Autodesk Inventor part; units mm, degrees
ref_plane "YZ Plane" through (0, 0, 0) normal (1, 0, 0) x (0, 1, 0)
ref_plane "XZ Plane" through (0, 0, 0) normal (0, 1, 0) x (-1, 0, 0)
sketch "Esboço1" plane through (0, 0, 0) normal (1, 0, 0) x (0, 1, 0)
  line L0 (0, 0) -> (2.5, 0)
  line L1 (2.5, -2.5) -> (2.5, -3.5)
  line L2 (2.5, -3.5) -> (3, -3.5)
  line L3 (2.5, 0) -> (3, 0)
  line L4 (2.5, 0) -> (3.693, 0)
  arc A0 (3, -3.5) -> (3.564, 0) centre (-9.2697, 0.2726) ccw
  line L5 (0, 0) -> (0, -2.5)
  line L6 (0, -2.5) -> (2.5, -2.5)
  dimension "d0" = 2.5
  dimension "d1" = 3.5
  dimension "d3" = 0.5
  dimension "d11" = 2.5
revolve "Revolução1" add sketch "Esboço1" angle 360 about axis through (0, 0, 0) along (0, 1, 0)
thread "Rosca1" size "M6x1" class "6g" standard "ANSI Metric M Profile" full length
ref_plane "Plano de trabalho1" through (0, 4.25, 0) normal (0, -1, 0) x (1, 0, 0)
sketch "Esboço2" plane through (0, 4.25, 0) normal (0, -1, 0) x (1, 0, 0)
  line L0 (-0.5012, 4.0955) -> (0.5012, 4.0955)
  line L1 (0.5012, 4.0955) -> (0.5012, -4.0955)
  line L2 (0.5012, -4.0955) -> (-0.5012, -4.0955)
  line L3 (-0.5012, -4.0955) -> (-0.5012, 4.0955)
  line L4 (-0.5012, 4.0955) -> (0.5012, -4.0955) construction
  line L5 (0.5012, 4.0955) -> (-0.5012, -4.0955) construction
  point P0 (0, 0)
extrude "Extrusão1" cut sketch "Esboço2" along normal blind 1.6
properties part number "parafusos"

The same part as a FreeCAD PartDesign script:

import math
import FreeCAD as App
import Part
import Sketcher

V = App.Vector
Q = App.Units.Quantity


def add_polygon(sketch, points):
    """Adds a closed chain of lines whose ends are joined by coincident constraints."""
    first, n = sketch.GeometryCount, len(points)
    for a, b in zip(points, points[1:] + points[:1]):
        sketch.addGeometry(Part.LineSegment(App.Vector(*a, 0), App.Vector(*b, 0)), False)
    for i in range(n):
        sketch.addConstraint(Sketcher.Constraint("Coincident", first + i, 2, first + (i + 1) % n, 1))

doc = App.newDocument("Part")
body = doc.addObject("PartDesign::Body", "Body")

sketch1 = body.newObject("Sketcher::SketchObject", "Sketch")
sketch1.AttachmentSupport = (doc.getObject("YZ_Plane"), [""])
sketch1.MapMode = "FlatFace"
sketch1.addGeometry(Part.LineSegment(V(3.6, 0, 0), V(0, 0, 0)), False)
sketch1.addGeometry(Part.LineSegment(V(0, 0, 0), V(0, -2.5, 0)), False)
sketch1.addGeometry(Part.LineSegment(V(0, -2.5, 0), V(2.5, -2.5, 0)), False)
sketch1.addGeometry(Part.LineSegment(V(2.5, -2.5, 0), V(2.5, -3.5, 0)), False)
sketch1.addGeometry(Part.LineSegment(V(2.5, -3.5, 0), V(3, -3.5, 0)), False)
sketch1.addGeometry(Part.ArcOfCircle(Part.Circle(V(-9.3, 0.3, 0), V(0, 0, 1), 12.8), math.radians(-17.09), math.radians(-1.22)), False)
sketch1.addConstraint(Sketcher.Constraint("Coincident", 0, 2, 1, 1))
sketch1.addConstraint(Sketcher.Constraint("Coincident", 1, 2, 2, 1))
sketch1.addConstraint(Sketcher.Constraint("Coincident", 2, 2, 3, 1))
sketch1.addConstraint(Sketcher.Constraint("Coincident", 3, 2, 4, 1))
sketch1.addConstraint(Sketcher.Constraint("Coincident", 4, 2, 5, 1))
sketch1.addConstraint(Sketcher.Constraint("Coincident", 5, 2, 0, 1))
sketch1.addConstraint(Sketcher.Constraint("Horizontal", 0))
sketch1.addConstraint(Sketcher.Constraint("Vertical", 1))
sketch1.addConstraint(Sketcher.Constraint("Horizontal", 2))
sketch1.addConstraint(Sketcher.Constraint("Vertical", 3))
sketch1.addConstraint(Sketcher.Constraint("Horizontal", 4))
sketch1.addConstraint(Sketcher.Constraint("Coincident", 0, 2, -1, 1))
sketch1.addConstraint(Sketcher.Constraint("Equal", 2, 1))
sketch1.addConstraint(Sketcher.Constraint("DistanceX", 2, 1, 2, 2, Q("2.5 mm")))
sketch1.addConstraint(Sketcher.Constraint("DistanceX", 4, 1, 4, 2, Q("0.5 mm")))
sketch1.addConstraint(Sketcher.Constraint("DistanceY", 3, 2, -1, 1, Q("3.5 mm")))
sketch1.addConstraint(Sketcher.Constraint("Radius", 5, Q("12.8366 mm")))
sketch1.addConstraint(Sketcher.Constraint("DistanceX", 0, 2, 0, 1, Q("3.564 mm")))
revolution = body.newObject("PartDesign::Revolution", "Revolution")
revolution.Profile = sketch1
revolution.ReferenceAxis = (sketch1, ["H_Axis"])
revolution.Angle = 360

sketch2 = body.newObject("Sketcher::SketchObject", "Sketch001")
sketch2.AttachmentSupport = (doc.getObject("XZ_Plane"), [""])
sketch2.MapMode = "FlatFace"
sketch2.AttachmentOffset = App.Placement(V(0, 0, -4.25), App.Rotation())
add_polygon(sketch2, [(0.5, 4.1), (-0.5, 4.1), (-0.5, -4.1), (0.5, -4.1)])
sketch2.addConstraint(Sketcher.Constraint("Horizontal", 0))
sketch2.addConstraint(Sketcher.Constraint("Vertical", 1))
sketch2.addConstraint(Sketcher.Constraint("Horizontal", 2))
sketch2.addConstraint(Sketcher.Constraint("Vertical", 3))
sketch2.addConstraint(Sketcher.Constraint("Symmetric", 0, 2, 2, 2, -1, 1))
sketch2.addConstraint(Sketcher.Constraint("DistanceY", 1, 2, 1, 1, Q("8.191 mm")))
sketch2.addConstraint(Sketcher.Constraint("DistanceX", 0, 2, 0, 1, Q("1.0024 mm")))
pocket1 = body.newObject("PartDesign::Pocket", "Pocket")
pocket1.Profile = sketch2
pocket1.Length = 1.6
pocket1.Reversed = True

doc.recompute()
